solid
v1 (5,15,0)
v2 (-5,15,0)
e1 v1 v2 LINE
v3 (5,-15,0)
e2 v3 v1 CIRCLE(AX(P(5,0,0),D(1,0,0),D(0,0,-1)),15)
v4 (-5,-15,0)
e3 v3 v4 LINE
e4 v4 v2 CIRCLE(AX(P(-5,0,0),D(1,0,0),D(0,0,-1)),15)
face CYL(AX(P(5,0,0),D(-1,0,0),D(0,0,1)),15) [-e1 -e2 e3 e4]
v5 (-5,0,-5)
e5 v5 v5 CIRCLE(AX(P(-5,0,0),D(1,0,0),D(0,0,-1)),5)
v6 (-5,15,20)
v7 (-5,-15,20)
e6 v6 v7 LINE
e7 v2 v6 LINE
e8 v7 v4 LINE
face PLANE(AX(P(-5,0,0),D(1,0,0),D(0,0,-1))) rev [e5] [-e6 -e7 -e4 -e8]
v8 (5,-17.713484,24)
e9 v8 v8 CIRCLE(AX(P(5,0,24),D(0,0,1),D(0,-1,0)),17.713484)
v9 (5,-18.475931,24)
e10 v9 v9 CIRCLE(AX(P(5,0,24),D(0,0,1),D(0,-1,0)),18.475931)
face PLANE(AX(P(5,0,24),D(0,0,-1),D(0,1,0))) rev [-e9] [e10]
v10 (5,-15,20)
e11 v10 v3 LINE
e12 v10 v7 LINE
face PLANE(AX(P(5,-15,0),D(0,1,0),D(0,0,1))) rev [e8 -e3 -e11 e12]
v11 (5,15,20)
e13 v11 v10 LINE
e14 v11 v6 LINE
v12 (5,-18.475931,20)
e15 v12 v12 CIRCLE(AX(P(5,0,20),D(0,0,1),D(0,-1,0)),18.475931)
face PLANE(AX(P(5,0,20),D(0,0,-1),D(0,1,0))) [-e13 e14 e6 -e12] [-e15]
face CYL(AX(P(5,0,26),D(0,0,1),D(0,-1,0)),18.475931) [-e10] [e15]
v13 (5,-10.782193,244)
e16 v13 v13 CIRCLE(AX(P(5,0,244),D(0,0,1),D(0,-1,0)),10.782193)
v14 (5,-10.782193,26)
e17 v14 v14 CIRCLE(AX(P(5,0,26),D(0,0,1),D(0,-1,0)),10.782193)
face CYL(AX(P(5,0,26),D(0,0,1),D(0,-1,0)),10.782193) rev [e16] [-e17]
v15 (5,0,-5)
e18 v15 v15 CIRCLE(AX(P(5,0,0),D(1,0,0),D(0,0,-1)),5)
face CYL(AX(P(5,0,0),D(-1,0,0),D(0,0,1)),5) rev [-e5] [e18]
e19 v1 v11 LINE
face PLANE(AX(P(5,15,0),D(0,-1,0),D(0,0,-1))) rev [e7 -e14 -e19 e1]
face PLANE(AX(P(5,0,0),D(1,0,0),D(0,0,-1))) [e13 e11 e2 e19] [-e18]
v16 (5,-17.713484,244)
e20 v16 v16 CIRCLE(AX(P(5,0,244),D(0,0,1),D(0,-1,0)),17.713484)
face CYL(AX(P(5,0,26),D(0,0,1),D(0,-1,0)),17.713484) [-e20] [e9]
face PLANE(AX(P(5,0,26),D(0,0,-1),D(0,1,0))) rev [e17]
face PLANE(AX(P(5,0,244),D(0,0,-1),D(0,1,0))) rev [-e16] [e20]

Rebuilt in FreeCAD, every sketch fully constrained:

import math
import FreeCAD as App
import Part
import Sketcher
from FreeCAD import Vector
Q = App.Units.Quantity

doc = App.newDocument("Part")
body = doc.addObject("PartDesign::Body", "Body")

sketch1 = body.newObject("Sketcher::SketchObject", "Sketch")
sketch1.AttachmentSupport = (doc.getObject("YZ_Plane"), [""])
sketch1.MapMode = "FlatFace"
sketch1.addGeometry([
    Part.LineSegment(Vector(15, 0, 0), Vector(15, 20, 0)),
    Part.LineSegment(Vector(15, 20, 0), Vector(-15, 20, 0)),
    Part.LineSegment(Vector(-15, 20, 0), Vector(-15, 0, 0)),
    Part.ArcOfCircle(Part.Circle(Vector(0, 0, 0), Vector(0, 0, 1), 15), math.radians(180), math.radians(360)),
    Part.Circle(Vector(0, 0, 0), Vector(0, 0, 1), 5),
], False)
sketch1.addConstraint([
    Sketcher.Constraint("Coincident", 0, 2, 1, 1),
    Sketcher.Constraint("Coincident", 1, 2, 2, 1),
    Sketcher.Constraint("Tangent", 2, 2, 3, 1),
    Sketcher.Constraint("Tangent", 3, 2, 0, 1),
    Sketcher.Constraint("Vertical", 0),
    Sketcher.Constraint("Horizontal", 1),
    Sketcher.Constraint("Vertical", 2),
    Sketcher.Constraint("Coincident", 3, 3, -1, 1),
    Sketcher.Constraint("Coincident", 4, 3, -1, 1),
    Sketcher.Constraint("Diameter", 4, Q("10 mm")),
    Sketcher.Constraint("Radius", 3, Q("15 mm")),
    Sketcher.Constraint("DistanceY", 0, 1, 0, 2, Q("20 mm")),
])
pad1 = body.newObject("PartDesign::Pad", "Pad")
pad1.Profile = sketch1
pad1.Length = 10
pad1.Midplane = True

sketch2 = body.newObject("Sketcher::SketchObject", "Sketch001")
sketch2.AttachmentSupport = (doc.getObject("YZ_Plane"), [""])
sketch2.MapMode = "FlatFace"
sketch2.AttachmentOffset = App.Placement(Vector(0, 0, 5), App.Rotation())
sketch2.addGeometry([
    Part.LineSegment(Vector(18.475931, 20, 0), Vector(18.475931, 24, 0)),
    Part.LineSegment(Vector(18.475931, 24, 0), Vector(17.713484, 24, 0)),
    Part.LineSegment(Vector(17.713484, 24, 0), Vector(17.713484, 244, 0)),
    Part.LineSegment(Vector(17.713484, 244, 0), Vector(10.782193, 244, 0)),
    Part.LineSegment(Vector(10.782193, 244, 0), Vector(10.782193, 26, 0)),
    Part.LineSegment(Vector(10.782193, 26, 0), Vector(0, 26, 0)),
    Part.LineSegment(Vector(0, 26, 0), Vector(0, 20, 0)),
    Part.LineSegment(Vector(0, 20, 0), Vector(18.475931, 20, 0)),
], False)
sketch2.addConstraint([
    Sketcher.Constraint("Coincident", 0, 2, 1, 1),
    Sketcher.Constraint("Coincident", 1, 2, 2, 1),
    Sketcher.Constraint("Coincident", 2, 2, 3, 1),
    Sketcher.Constraint("Coincident", 3, 2, 4, 1),
    Sketcher.Constraint("Coincident", 4, 2, 5, 1),
    Sketcher.Constraint("Coincident", 5, 2, 6, 1),
    Sketcher.Constraint("Coincident", 6, 2, 7, 1),
    Sketcher.Constraint("Coincident", 7, 2, 0, 1),
    Sketcher.Constraint("Vertical", 0),
    Sketcher.Constraint("Horizontal", 1),
    Sketcher.Constraint("Vertical", 2),
    Sketcher.Constraint("Horizontal", 3),
    Sketcher.Constraint("Vertical", 4),
    Sketcher.Constraint("Horizontal", 5),
    Sketcher.Constraint("Vertical", 6),
    Sketcher.Constraint("Horizontal", 7),
    Sketcher.Constraint("PointOnObject", 5, 2, -2),
    Sketcher.Constraint("DistanceY", 0, 1, 0, 2, Q("4 mm")),
    Sketcher.Constraint("DistanceY", 2, 1, 2, 2, Q("220 mm")),
    Sketcher.Constraint("DistanceY", 4, 2, 4, 1, Q("218 mm")),
    Sketcher.Constraint("DistanceY", -1, 1, 0, 2, Q("24 mm")),
    Sketcher.Constraint("DistanceX", 3, 2, 3, 1, Q("6.931291 mm")),
    Sketcher.Constraint("DistanceX", 7, 1, 7, 2, Q("18.475931 mm")),
    Sketcher.Constraint("DistanceX", 1, 2, 1, 1, Q("0.762447 mm")),
])
revolution = body.newObject("PartDesign::Revolution", "Revolution")
revolution.Profile = sketch2
revolution.ReferenceAxis = (sketch2, ["V_Axis"])
revolution.Angle = 360

doc.recompute()
